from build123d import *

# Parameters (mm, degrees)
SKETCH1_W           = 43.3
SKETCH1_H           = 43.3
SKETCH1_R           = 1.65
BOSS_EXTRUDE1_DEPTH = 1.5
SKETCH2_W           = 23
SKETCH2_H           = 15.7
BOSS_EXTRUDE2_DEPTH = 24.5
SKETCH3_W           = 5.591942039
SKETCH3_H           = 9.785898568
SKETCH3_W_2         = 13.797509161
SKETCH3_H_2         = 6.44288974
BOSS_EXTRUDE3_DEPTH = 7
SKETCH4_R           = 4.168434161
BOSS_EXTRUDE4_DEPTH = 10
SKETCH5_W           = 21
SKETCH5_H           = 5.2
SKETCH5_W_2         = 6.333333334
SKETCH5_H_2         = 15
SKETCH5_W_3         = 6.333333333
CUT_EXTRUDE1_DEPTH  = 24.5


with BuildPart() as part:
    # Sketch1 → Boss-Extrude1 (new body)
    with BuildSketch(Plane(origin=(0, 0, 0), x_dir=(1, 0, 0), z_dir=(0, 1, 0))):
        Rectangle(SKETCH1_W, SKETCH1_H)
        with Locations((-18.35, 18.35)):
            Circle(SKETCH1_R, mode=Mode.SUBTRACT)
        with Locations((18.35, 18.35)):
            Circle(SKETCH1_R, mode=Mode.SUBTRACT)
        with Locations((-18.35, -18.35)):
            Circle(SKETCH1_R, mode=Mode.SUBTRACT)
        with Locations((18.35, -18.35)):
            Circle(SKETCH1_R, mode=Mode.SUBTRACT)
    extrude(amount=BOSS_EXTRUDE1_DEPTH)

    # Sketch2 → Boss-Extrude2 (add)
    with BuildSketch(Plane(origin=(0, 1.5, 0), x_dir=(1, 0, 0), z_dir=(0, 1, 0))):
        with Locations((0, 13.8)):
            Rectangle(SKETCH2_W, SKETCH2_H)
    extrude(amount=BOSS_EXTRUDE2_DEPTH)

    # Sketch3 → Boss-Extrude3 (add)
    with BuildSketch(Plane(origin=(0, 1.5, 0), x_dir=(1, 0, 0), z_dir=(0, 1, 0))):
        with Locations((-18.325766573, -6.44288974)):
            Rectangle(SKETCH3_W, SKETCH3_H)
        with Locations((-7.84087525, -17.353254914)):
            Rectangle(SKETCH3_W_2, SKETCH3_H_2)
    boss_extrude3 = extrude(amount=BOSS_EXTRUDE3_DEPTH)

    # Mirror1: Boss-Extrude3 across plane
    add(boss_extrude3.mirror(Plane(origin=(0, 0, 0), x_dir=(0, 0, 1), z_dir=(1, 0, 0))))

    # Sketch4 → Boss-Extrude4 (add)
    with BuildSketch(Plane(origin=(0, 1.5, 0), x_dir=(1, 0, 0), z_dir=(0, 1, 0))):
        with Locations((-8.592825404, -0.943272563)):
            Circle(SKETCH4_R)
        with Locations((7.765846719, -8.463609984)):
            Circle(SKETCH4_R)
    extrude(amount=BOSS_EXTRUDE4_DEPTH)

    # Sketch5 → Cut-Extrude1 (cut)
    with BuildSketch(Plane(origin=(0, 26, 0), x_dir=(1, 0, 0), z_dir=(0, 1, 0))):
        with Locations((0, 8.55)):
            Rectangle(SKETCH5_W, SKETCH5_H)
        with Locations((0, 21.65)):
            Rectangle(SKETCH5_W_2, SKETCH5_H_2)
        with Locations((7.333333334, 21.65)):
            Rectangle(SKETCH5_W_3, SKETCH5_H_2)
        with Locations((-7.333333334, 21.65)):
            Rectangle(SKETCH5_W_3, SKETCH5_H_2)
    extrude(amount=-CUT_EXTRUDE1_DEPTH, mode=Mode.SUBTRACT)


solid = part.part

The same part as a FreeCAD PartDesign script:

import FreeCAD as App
import Part
import Sketcher
Q = App.Units.Quantity


def add_polygon(sketch, points):
    """Adds a closed chain of lines whose ends are joined by coincident constraints."""
    first, n = sketch.GeometryCount, len(points)
    for a, b in zip(points, points[1:] + points[:1]):
        sketch.addGeometry(Part.LineSegment(App.Vector(*a, 0), App.Vector(*b, 0)), False)
    for i in range(n):
        sketch.addConstraint(Sketcher.Constraint("Coincident", first + i, 2, first + (i + 1) % n, 1))

doc = App.newDocument("Part")
body = doc.addObject("PartDesign::Body", "Body")

sketch1 = body.newObject("Sketcher::SketchObject", "Sketch")
sketch1.AttachmentSupport = (doc.getObject("XZ_Plane"), [""])
sketch1.MapMode = "FlatFace"
add_polygon(sketch1, [(-21.6, -21.6), (-21.6, 21.6), (21.6, 21.6), (21.6, -21.6)])
sketch1.addGeometry(Part.Circle(App.Vector(-18.4, 18.4, 0), App.Vector(0, 0, 1), 1.6), False)
sketch1.addGeometry(Part.Circle(App.Vector(18.4, 18.4, 0), App.Vector(0, 0, 1), 1.6), False)
sketch1.addGeometry(Part.Circle(App.Vector(-18.4, -18.4, 0), App.Vector(0, 0, 1), 1.6), False)
sketch1.addGeometry(Part.Circle(App.Vector(18.4, -18.4, 0), App.Vector(0, 0, 1), 1.6), False)
sketch1.addConstraint(Sketcher.Constraint("Vertical", 0))
sketch1.addConstraint(Sketcher.Constraint("Horizontal", 1))
sketch1.addConstraint(Sketcher.Constraint("Vertical", 2))
sketch1.addConstraint(Sketcher.Constraint("Horizontal", 3))
sketch1.addConstraint(Sketcher.Constraint("Equal", 4, 5))
sketch1.addConstraint(Sketcher.Constraint("Equal", 5, 6))
sketch1.addConstraint(Sketcher.Constraint("Equal", 6, 7))
sketch1.addConstraint(Sketcher.Constraint("Symmetric", 5, 3, 6, 3, -1, 1))
sketch1.addConstraint(Sketcher.Constraint("Symmetric", 4, 3, 7, 3, -1, 1))
sketch1.addConstraint(Sketcher.Constraint("Symmetric", 0, 2, 2, 2, -1, 1))
sketch1.addConstraint(Sketcher.Constraint("Symmetric", 4, 3, 5, 3, -2))
sketch1.addConstraint(Sketcher.Constraint("Equal", 3, 0))
sketch1.addConstraint(Sketcher.Constraint("Diameter", 4, Q("3.3 mm")))
sketch1.addConstraint(Sketcher.Constraint("DistanceX", 1, 1, 1, 2, Q("43.3 mm")))
sketch1.addConstraint(Sketcher.Constraint("DistanceX", 0, 2, 5, 3, Q("40 mm")))
sketch1.addConstraint(Sketcher.Constraint("DistanceY", 6, 3, 0, 2, Q("40 mm")))
pad1 = body.newObject("PartDesign::Pad", "Pad")
pad1.Profile = sketch1
pad1.Length = 1.5
pad1.Reversed = True

sketch2 = body.newObject("Sketcher::SketchObject", "Sketch001")
sketch2.AttachmentSupport = (doc.getObject("XZ_Plane"), [""])
sketch2.MapMode = "FlatFace"
sketch2.AttachmentOffset = App.Placement(App.Vector(0, 0, -1.5), App.Rotation())
add_polygon(sketch2, [(-12, -22), (-12, -6), (12, -6), (12, -22)])
sketch2.addConstraint(Sketcher.Constraint("Vertical", 0))
sketch2.addConstraint(Sketcher.Constraint("Horizontal", 1))
sketch2.addConstraint(Sketcher.Constraint("Vertical", 2))
sketch2.addConstraint(Sketcher.Constraint("Horizontal", 3))
sketch2.addConstraint(Sketcher.Constraint("DistanceX", 1, 1, 1, 2, Q("23 mm")))
sketch2.addConstraint(Sketcher.Constraint("DistanceY", 0, 1, 0, 2, Q("15.7 mm")))
sketch2.addConstraint(Sketcher.Constraint("DistanceX", 0, 2, -1, 1, Q("11.5 mm")))
sketch2.addConstraint(Sketcher.Constraint("DistanceY", 0, 2, -1, 1, Q("5.95 mm")))
pad2 = body.newObject("PartDesign::Pad", "Pad001")
pad2.Profile = sketch2
pad2.Length = 24.5
pad2.Reversed = True

sketch3 = body.newObject("Sketcher::SketchObject", "Sketch002")
sketch3.AttachmentSupport = (doc.getObject("XZ_Plane"), [""])
sketch3.MapMode = "FlatFace"
sketch3.AttachmentOffset = App.Placement(App.Vector(0, 0, -1.5), App.Rotation())
add_polygon(sketch3, [(-21, 2), (-21, 11), (-16, 11), (-16, 2)])
add_polygon(sketch3, [(-15, 14), (-15, 21), (-1, 21), (-1, 14)])
sketch3.addConstraint(Sketcher.Constraint("Vertical", 0))
sketch3.addConstraint(Sketcher.Constraint("Horizontal", 1))
sketch3.addConstraint(Sketcher.Constraint("Vertical", 2))
sketch3.addConstraint(Sketcher.Constraint("Horizontal", 3))
sketch3.addConstraint(Sketcher.Constraint("Vertical", 4))
sketch3.addConstraint(Sketcher.Constraint("Horizontal", 5))
sketch3.addConstraint(Sketcher.Constraint("Vertical", 6))
sketch3.addConstraint(Sketcher.Constraint("Horizontal", 7))
sketch3.addConstraint(Sketcher.Constraint("DistanceY", 0, 1, 0, 2, Q("9.785899 mm")))
sketch3.addConstraint(Sketcher.Constraint("DistanceX", 5, 1, 5, 2, Q("13.797509 mm")))
sketch3.addConstraint(Sketcher.Constraint("DistanceY", 4, 1, 4, 2, Q("6.44289 mm")))
sketch3.addConstraint(Sketcher.Constraint("DistanceY", -1, 1, 4, 2, Q("20.5747 mm")))
sketch3.addConstraint(Sketcher.Constraint("DistanceX", 1, 1, 1, 2, Q("5.591942 mm")))
sketch3.addConstraint(Sketcher.Constraint("DistanceY", -1, 1, 0, 2, Q("11.335839 mm")))
sketch3.addConstraint(Sketcher.Constraint("DistanceX", 4, 2, -1, 1, Q("14.73963 mm")))
sketch3.addConstraint(Sketcher.Constraint("DistanceX", 0, 2, -1, 1, Q("21.121738 mm")))
pad3 = body.newObject("PartDesign::Pad", "Pad002")
pad3.Profile = sketch3
pad3.Length = 7
pad3.Reversed = True
doc.recompute()

mirrored = body.newObject("PartDesign::Mirrored", "Mirrored")
mirrored.Originals = [pad3]
mirrored.MirrorPlane = (doc.getObject("YZ_Plane"), [""])
body.Tip = mirrored

sketch4 = body.newObject("Sketcher::SketchObject", "Sketch003")
sketch4.AttachmentSupport = (doc.getObject("XZ_Plane"), [""])
sketch4.MapMode = "FlatFace"
sketch4.AttachmentOffset = App.Placement(App.Vector(0, 0, -1.5), App.Rotation())
sketch4.addGeometry(Part.Circle(App.Vector(-8.6, 0.9, 0), App.Vector(0, 0, 1), 4.2), False)
sketch4.addGeometry(Part.Circle(App.Vector(7.8, 8.5, 0), App.Vector(0, 0, 1), 4.2), False)
sketch4.addConstraint(Sketcher.Constraint("Equal", 0, 1))
sketch4.addConstraint(Sketcher.Constraint("Diameter", 0, Q("8.336868 mm")))
sketch4.addConstraint(Sketcher.Constraint("DistanceY", -1, 1, 1, 3, Q("8.46361 mm")))
sketch4.addConstraint(Sketcher.Constraint("DistanceX", 0, 3, -1, 1, Q("8.592825 mm")))
sketch4.addConstraint(Sketcher.Constraint("DistanceY", -1, 1, 0, 3, Q("0.943273 mm")))
sketch4.addConstraint(Sketcher.Constraint("DistanceX", -1, 1, 1, 3, Q("7.765847 mm")))
pad4 = body.newObject("PartDesign::Pad", "Pad003")
pad4.Profile = sketch4
pad4.Length = 10
pad4.Reversed = True

sketch5 = body.newObject("Sketcher::SketchObject", "Sketch004")
sketch5.AttachmentSupport = (doc.getObject("XZ_Plane"), [""])
sketch5.MapMode = "FlatFace"
sketch5.AttachmentOffset = App.Placement(App.Vector(0, 0, -26), App.Rotation())
add_polygon(sketch5, [(-10, -11), (-10, -6), (10, -6), (10, -11)])
add_polygon(sketch5, [(-3, -29), (-3, -14), (3, -14), (3, -29)])
add_polygon(sketch5, [(4, -29), (4, -14), (11, -14), (11, -29)])
add_polygon(sketch5, [(-11, -29), (-11, -14), (-4, -14), (-4, -29)])
sketch5.addConstraint(Sketcher.Constraint("Vertical", 0))
sketch5.addConstraint(Sketcher.Constraint("Horizontal", 1))
sketch5.addConstraint(Sketcher.Constraint("Vertical", 2))
sketch5.addConstraint(Sketcher.Constraint("Horizontal", 3))
sketch5.addConstraint(Sketcher.Constraint("Vertical", 4))
sketch5.addConstraint(Sketcher.Constraint("Horizontal", 5))
sketch5.addConstraint(Sketcher.Constraint("Vertical", 6))
sketch5.addConstraint(Sketcher.Constraint("Horizontal", 7))
sketch5.addConstraint(Sketcher.Constraint("Vertical", 8))
sketch5.addConstraint(Sketcher.Constraint("Horizontal", 9))
sketch5.addConstraint(Sketcher.Constraint("Vertical", 10))
sketch5.addConstraint(Sketcher.Constraint("Horizontal", 11))
sketch5.addConstraint(Sketcher.Constraint("Vertical", 12))
sketch5.addConstraint(Sketcher.Constraint("Horizontal", 13))
sketch5.addConstraint(Sketcher.Constraint("Vertical", 14))
sketch5.addConstraint(Sketcher.Constraint("Horizontal", 15))
sketch5.addConstraint(Sketcher.Constraint("Symmetric", 9, 2, 12, 2, -2))
sketch5.addConstraint(Sketcher.Constraint("Symmetric", 11, 2, 14, 2, -2))
sketch5.addConstraint(Sketcher.Constraint("Horizontal", 5, 2, 8, 2))
sketch5.addConstraint(Sketcher.Constraint("Horizontal", 7, 2, 10, 2))
sketch5.addConstraint(Sketcher.Constraint("Vertical", 2, 2, 9, 2))
sketch5.addConstraint(Sketcher.Constraint("Vertical", 3, 2, 12, 2))
sketch5.addConstraint(Sketcher.Constraint("Equal", 7, 9))
sketch5.addConstraint(Sketcher.Constraint("DistanceX", 1, 1, 1, 2, Q("21 mm")))
sketch5.addConstraint(Sketcher.Constraint("DistanceY", 4, 1, 4, 2, Q("15 mm")))
sketch5.addConstraint(Sketcher.Constraint("DistanceY", 0, 1, 0, 2, Q("5.2 mm")))
sketch5.addConstraint(Sketcher.Constraint("DistanceY", 4, 2, 3, 2, Q("3 mm")))
sketch5.addConstraint(Sketcher.Constraint("DistanceX", 5, 2, 8, 2, Q("1 mm")))
sketch5.addConstraint(Sketcher.Constraint("DistanceX", 13, 2, 4, 2, Q("1 mm")))
sketch5.addConstraint(Sketcher.Constraint("DistanceY", 0, 2, -1, 1, Q("5.95 mm")))
pocket1 = body.newObject("PartDesign::Pocket", "Pocket")
pocket1.Profile = sketch5
pocket1.Length = 24.5
pocket1.Reversed = True

doc.recompute()
